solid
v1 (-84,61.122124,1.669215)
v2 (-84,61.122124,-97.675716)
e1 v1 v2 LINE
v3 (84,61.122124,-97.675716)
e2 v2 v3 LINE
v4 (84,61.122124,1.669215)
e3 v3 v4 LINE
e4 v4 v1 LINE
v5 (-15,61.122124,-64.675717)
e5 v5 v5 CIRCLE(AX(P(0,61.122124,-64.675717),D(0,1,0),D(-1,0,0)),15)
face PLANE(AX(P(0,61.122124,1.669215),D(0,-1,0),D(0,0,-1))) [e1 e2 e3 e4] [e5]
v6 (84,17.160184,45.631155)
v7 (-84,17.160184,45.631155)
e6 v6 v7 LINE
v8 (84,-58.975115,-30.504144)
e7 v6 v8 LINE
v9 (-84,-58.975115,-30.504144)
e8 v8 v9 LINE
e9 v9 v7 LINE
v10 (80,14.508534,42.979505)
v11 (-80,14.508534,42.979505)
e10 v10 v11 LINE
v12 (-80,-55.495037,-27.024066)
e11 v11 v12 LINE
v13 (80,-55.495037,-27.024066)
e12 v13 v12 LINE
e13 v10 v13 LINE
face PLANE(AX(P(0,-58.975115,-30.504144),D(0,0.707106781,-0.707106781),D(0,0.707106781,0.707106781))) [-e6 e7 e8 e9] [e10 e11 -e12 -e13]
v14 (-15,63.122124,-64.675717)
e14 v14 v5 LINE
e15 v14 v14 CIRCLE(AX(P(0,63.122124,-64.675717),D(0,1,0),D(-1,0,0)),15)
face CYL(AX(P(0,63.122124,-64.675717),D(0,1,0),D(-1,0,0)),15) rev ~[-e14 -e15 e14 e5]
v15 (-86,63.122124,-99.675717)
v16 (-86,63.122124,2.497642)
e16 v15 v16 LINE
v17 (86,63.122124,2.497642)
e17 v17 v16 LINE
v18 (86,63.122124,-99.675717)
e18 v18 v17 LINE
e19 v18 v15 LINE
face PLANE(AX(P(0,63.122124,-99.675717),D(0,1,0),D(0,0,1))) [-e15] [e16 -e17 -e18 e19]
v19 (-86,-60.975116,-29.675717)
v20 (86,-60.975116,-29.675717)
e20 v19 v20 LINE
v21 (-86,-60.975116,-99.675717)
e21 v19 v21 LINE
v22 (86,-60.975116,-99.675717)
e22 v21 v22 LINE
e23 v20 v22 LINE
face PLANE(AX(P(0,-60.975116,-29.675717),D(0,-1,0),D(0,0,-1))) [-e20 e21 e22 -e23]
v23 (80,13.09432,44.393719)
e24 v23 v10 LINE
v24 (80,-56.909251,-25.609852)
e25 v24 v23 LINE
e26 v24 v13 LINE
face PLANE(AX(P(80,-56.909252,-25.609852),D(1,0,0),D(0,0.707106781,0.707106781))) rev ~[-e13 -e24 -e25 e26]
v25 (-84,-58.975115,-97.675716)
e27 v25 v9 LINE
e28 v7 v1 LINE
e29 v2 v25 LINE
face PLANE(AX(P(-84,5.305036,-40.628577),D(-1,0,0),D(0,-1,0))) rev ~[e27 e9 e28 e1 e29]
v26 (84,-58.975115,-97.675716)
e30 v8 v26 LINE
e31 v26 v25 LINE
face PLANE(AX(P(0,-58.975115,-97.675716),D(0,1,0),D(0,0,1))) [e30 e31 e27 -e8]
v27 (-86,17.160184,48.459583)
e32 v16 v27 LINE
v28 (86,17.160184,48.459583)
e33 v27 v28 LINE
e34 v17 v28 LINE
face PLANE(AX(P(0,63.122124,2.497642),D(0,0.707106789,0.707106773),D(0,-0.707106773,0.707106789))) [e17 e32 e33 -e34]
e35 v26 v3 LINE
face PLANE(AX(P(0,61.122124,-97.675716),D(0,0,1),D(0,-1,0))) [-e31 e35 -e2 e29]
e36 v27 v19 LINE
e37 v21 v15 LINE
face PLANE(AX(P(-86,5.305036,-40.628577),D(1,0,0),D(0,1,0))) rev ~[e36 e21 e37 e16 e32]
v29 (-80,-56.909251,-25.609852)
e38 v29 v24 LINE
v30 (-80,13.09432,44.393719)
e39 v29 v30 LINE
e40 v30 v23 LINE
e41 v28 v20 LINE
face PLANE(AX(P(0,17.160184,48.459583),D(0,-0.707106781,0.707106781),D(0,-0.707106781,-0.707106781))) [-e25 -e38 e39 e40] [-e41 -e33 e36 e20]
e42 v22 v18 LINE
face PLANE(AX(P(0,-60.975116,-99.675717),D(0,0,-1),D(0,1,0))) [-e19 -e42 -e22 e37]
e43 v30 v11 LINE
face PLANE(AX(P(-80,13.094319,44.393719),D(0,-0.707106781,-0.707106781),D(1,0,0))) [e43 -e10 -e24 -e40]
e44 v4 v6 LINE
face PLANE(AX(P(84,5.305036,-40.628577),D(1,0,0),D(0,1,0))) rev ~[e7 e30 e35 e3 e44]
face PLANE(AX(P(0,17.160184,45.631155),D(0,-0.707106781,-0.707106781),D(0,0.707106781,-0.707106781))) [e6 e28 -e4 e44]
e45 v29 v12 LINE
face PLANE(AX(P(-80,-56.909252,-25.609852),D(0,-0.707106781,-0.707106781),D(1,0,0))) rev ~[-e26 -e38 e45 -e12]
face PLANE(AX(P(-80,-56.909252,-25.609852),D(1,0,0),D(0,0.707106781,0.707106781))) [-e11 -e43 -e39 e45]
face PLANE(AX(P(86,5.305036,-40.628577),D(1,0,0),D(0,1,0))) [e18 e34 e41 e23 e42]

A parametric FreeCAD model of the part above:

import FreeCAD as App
import Part
import Sketcher
from FreeCAD import Vector
Q = App.Units.Quantity

doc = App.newDocument("Part")
body = doc.addObject("PartDesign::Body", "Body")

sketch1 = body.newObject("Sketcher::SketchObject", "Sketch")
sketch1.AttachmentSupport = (doc.getObject("YZ_Plane"), [""])
sketch1.MapMode = "FlatFace"
sketch1.addGeometry([
    Part.LineSegment(Vector(63, 2, 0), Vector(17, 48, 0)),
    Part.LineSegment(Vector(17, 48, 0), Vector(-61, -30, 0)),
    Part.LineSegment(Vector(-61, -30, 0), Vector(-61, -100, 0)),
    Part.LineSegment(Vector(-61, -100, 0), Vector(63, -100, 0)),
    Part.LineSegment(Vector(63, -100, 0), Vector(63, 2, 0)),
    Part.LineSegment(Vector(61, 2, 0), Vector(61, -98, 0)),
    Part.LineSegment(Vector(61, -98, 0), Vector(-59, -98, 0)),
    Part.LineSegment(Vector(-59, -98, 0), Vector(-59, -31, 0)),
    Part.LineSegment(Vector(-59, -31, 0), Vector(17, 46, 0)),
    Part.LineSegment(Vector(17, 46, 0), Vector(61, 2, 0)),
], False)
sketch1.addConstraint([
    Sketcher.Constraint("Coincident", 0, 2, 1, 1),
    Sketcher.Constraint("Coincident", 1, 2, 2, 1),
    Sketcher.Constraint("Coincident", 2, 2, 3, 1),
    Sketcher.Constraint("Coincident", 3, 2, 4, 1),
    Sketcher.Constraint("Coincident", 4, 2, 0, 1),
    Sketcher.Constraint("Coincident", 5, 2, 6, 1),
    Sketcher.Constraint("Coincident", 6, 2, 7, 1),
    Sketcher.Constraint("Coincident", 7, 2, 8, 1),
    Sketcher.Constraint("Coincident", 8, 2, 9, 1),
    Sketcher.Constraint("Coincident", 9, 2, 5, 1),
    Sketcher.Constraint("Vertical", 2),
    Sketcher.Constraint("Horizontal", 3),
    Sketcher.Constraint("Vertical", 4),
    Sketcher.Constraint("Vertical", 5),
    Sketcher.Constraint("Horizontal", 6),
    Sketcher.Constraint("Vertical", 7),
    Sketcher.Constraint("Perpendicular", 0, 1),
    Sketcher.Constraint("Parallel", 1, 8),
    Sketcher.Constraint("Perpendicular", 8, 9),
    Sketcher.Constraint("Vertical", 0, 2, 8, 2),
    Sketcher.Constraint("DistanceY", 2, 2, 2, 1, 70.0),
    Sketcher.Constraint("Angle", 0, Q("134.999999 deg")),
    Sketcher.Constraint("Distance", 0, 65.0),
    Sketcher.Constraint("DistanceX", 5, 2, 3, 2, 2.0),
    Sketcher.Constraint("DistanceY", 3, 2, 5, 2, 2.000001),
    Sketcher.Constraint("DistanceX", 2, 2, 6, 2, 2.000001),
    Sketcher.Constraint("Distance", 1, 110.500001),
    Sketcher.Constraint("DistanceY", 5, 2, 5, 1, 99.344931),
    Sketcher.Constraint("DistanceY", -1, 1, 4, 2, 2.497642),
    Sketcher.Constraint("DistanceX", -1, 1, 0, 2, 17.160184),
])
pad1 = body.newObject("PartDesign::Pad", "Pad")
pad1.Profile = sketch1
pad1.Length = 172
pad1.Midplane = True

sketch2 = body.newObject("Sketcher::SketchObject", "Sketch001")
sketch2.Placement = App.Placement(Vector(0, -15.6497, 15.6497), App.Rotation(Vector(1, 0, 0), Vector(0, 0.707106781, 0.707106781), Vector(0, -0.707106781, 0.707106781), "ZXY"))
sketch2.addGeometry([
    Part.LineSegment(Vector(-80, 41, 0), Vector(-80, -58, 0)),
    Part.LineSegment(Vector(-80, -58, 0), Vector(80, -58, 0)),
    Part.LineSegment(Vector(80, -58, 0), Vector(80, 41, 0)),
    Part.LineSegment(Vector(80, 41, 0), Vector(-80, 41, 0)),
], False)
sketch2.addConstraint([
    Sketcher.Constraint("Coincident", 0, 2, 1, 1),
    Sketcher.Constraint("Coincident", 1, 2, 2, 1),
    Sketcher.Constraint("Coincident", 2, 2, 3, 1),
    Sketcher.Constraint("Coincident", 3, 2, 0, 1),
    Sketcher.Constraint("Vertical", 0),
    Sketcher.Constraint("Horizontal", 1),
    Sketcher.Constraint("Vertical", 2),
    Sketcher.Constraint("Horizontal", 3),
    Sketcher.Constraint("DistanceX", 1, 1, 1, 2, 160.0),
    Sketcher.Constraint("DistanceY", 0, 2, 0, 1, 99.0),
    Sketcher.Constraint("DistanceX", 0, 2, -1, 1, 80.0),
    Sketcher.Constraint("DistanceY", -1, 1, 2, 2, 40.650182),
])
pocket1 = body.newObject("PartDesign::Pocket", "Pocket")
pocket1.Profile = sketch2
pocket1.Length = 25

sketch3 = body.newObject("Sketcher::SketchObject", "Sketch002")
sketch3.AttachmentSupport = (doc.getObject("XZ_Plane"), [""])
sketch3.MapMode = "FlatFace"
sketch3.AttachmentOffset = App.Placement(Vector(0, 0, -63.122124), App.Rotation())
sketch3.addGeometry(Part.Circle(Vector(0, -65, 0), Vector(0, 0, 1), 15), False)
sketch3.addConstraint([
    Sketcher.Constraint("PointOnObject", 0, 3, -2),
    Sketcher.Constraint("Diameter", 0, 30.0),
    Sketcher.Constraint("DistanceY", 0, 3, -1, 1, 64.675717),
])
pocket2 = body.newObject("PartDesign::Pocket", "Pocket001")
pocket2.Profile = sketch3
pocket2.Length = 25
pocket2.Reversed = True

sketch4 = body.newObject("Sketcher::SketchObject", "Sketch003")
sketch4.AttachmentSupport = (doc.getObject("YZ_Plane"), [""])
sketch4.MapMode = "FlatFace"
sketch4.AttachmentOffset = App.Placement(Vector(0, 0, 86), App.Rotation())
sketch4.addGeometry([
    Part.LineSegment(Vector(63, 2, 0), Vector(17, 48, 0)),
    Part.LineSegment(Vector(17, 48, 0), Vector(-61, -30, 0)),
    Part.LineSegment(Vector(-61, -30, 0), Vector(-61, -100, 0)),
    Part.LineSegment(Vector(-61, -100, 0), Vector(63, -100, 0)),
    Part.LineSegment(Vector(63, -100, 0), Vector(63, 2, 0)),
], False)
sketch4.addConstraint([
    Sketcher.Constraint("Coincident", 0, 2, 1, 1),
    Sketcher.Constraint("Coincident", 1, 2, 2, 1),
    Sketcher.Constraint("Coincident", 2, 2, 3, 1),
    Sketcher.Constraint("Coincident", 3, 2, 4, 1),
    Sketcher.Constraint("Coincident", 4, 2, 0, 1),
    Sketcher.Constraint("Vertical", 2),
    Sketcher.Constraint("Horizontal", 3),
    Sketcher.Constraint("Vertical", 4),
    Sketcher.Constraint("Perpendicular", 0, 1),
    Sketcher.Constraint("DistanceY", 2, 2, 2, 1, 70.0),
    Sketcher.Constraint("Angle", 0, Q("134.999999 deg")),
    Sketcher.Constraint("Distance", 0, 65.0),
    Sketcher.Constraint("Distance", 1, 110.500001),
    Sketcher.Constraint("DistanceY", -1, 1, 4, 2, 2.497642),
    Sketcher.Constraint("DistanceX", -1, 1, 0, 2, 17.160184),
])
pad2 = body.newObject("PartDesign::Pad", "Pad001")
pad2.Profile = sketch4
pad2.Length = 2
pad2.Reversed = True

sketch5 = body.newObject("Sketcher::SketchObject", "Sketch004")
sketch5.AttachmentSupport = (doc.getObject("YZ_Plane"), [""])
sketch5.MapMode = "FlatFace"
sketch5.AttachmentOffset = App.Placement(Vector(0, 0, -86), App.Rotation())
sketch5.addGeometry([
    Part.LineSegment(Vector(17, 48, 0), Vector(63, 2, 0)),
    Part.LineSegment(Vector(63, 2, 0), Vector(63, -100, 0)),
    Part.LineSegment(Vector(63, -100, 0), Vector(-61, -100, 0)),
    Part.LineSegment(Vector(-61, -100, 0), Vector(-61, -30, 0)),
    Part.LineSegment(Vector(-61, -30, 0), Vector(17, 48, 0)),
], False)
sketch5.addConstraint([
    Sketcher.Constraint("Coincident", 0, 2, 1, 1),
    Sketcher.Constraint("Coincident", 1, 2, 2, 1),
    Sketcher.Constraint("Coincident", 2, 2, 3, 1),
    Sketcher.Constraint("Coincident", 3, 2, 4, 1),
    Sketcher.Constraint("Coincident", 4, 2, 0, 1),
    Sketcher.Constraint("Vertical", 1),
    Sketcher.Constraint("Horizontal", 2),
    Sketcher.Constraint("Vertical", 3),
    Sketcher.Constraint("Perpendicular", 0, 4),
    Sketcher.Constraint("DistanceY", 3, 1, 3, 2, 70.0),
    Sketcher.Constraint("Angle", 0, Q("-45.000001 deg")),
    Sketcher.Constraint("Distance", 0, 65.0),
    Sketcher.Constraint("Distance", 4, 110.500001),
    Sketcher.Constraint("DistanceY", -1, 1, 0, 2, 2.497642),
    Sketcher.Constraint("DistanceX", -1, 1, 0, 2, 63.122124),
])
pad3 = body.newObject("PartDesign::Pad", "Pad002")
pad3.Profile = sketch5
pad3.Length = 2

doc.recompute()
